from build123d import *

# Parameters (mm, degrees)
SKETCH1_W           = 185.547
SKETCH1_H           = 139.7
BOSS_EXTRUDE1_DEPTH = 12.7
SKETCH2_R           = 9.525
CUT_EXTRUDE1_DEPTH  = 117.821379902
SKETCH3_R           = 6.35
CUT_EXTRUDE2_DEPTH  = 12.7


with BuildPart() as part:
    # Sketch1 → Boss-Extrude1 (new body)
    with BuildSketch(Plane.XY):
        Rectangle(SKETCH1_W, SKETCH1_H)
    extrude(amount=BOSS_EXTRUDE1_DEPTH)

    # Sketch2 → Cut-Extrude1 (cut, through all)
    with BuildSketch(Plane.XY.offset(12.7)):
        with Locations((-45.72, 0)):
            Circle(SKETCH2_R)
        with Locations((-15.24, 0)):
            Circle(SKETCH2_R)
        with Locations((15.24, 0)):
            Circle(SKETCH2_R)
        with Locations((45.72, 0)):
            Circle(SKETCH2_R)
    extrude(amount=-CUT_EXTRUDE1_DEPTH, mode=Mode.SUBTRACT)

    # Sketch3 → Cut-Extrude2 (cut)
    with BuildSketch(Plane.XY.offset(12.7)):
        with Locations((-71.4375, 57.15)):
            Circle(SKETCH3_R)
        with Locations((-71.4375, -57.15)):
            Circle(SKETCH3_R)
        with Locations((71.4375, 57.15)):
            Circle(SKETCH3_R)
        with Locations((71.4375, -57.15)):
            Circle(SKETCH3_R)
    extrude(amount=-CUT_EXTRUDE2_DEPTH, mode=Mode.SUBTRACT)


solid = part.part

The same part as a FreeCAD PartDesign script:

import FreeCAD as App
import Part
import Sketcher
from FreeCAD import Vector
Q = App.Units.Quantity

doc = App.newDocument("Part")
params = doc.addObject("Spreadsheet::Sheet", "Params")
for row, (alias, value) in enumerate([
    ("sketch1_height", "5.5 in"),
    ("sketch1_width", "7.305 in"),
    ("pad1_length", "0.5 in"),
    ("sketch2_diameter", "0.75 in"),
    ("sketch3_diameter", "0.5 in"),
    ("pocket2_length", "0.5 in"),
], start=1):
    params.set(f"A{row}", alias)
    params.set(f"B{row}", "=" + value)
    params.setAlias(f"B{row}", alias)

body = doc.addObject("PartDesign::Body", "Body")

sketch1 = body.newObject("Sketcher::SketchObject", "Sketch")
sketch1.AttachmentSupport = (doc.getObject("XY_Plane"), [""])
sketch1.MapMode = "FlatFace"
sketch1.addGeometry([
    Part.LineSegment(Vector(-93, 70, 0), Vector(-93, -70, 0)),
    Part.LineSegment(Vector(-93, -70, 0), Vector(93, -70, 0)),
    Part.LineSegment(Vector(93, -70, 0), Vector(93, 70, 0)),
    Part.LineSegment(Vector(93, 70, 0), Vector(-93, 70, 0)),
], False)
sketch1.addConstraint([
    Sketcher.Constraint("Coincident", 0, 2, 1, 1),
    Sketcher.Constraint("Coincident", 1, 2, 2, 1),
    Sketcher.Constraint("Coincident", 2, 2, 3, 1),
    Sketcher.Constraint("Coincident", 3, 2, 0, 1),
    Sketcher.Constraint("Vertical", 0),
    Sketcher.Constraint("Horizontal", 1),
    Sketcher.Constraint("Vertical", 2),
    Sketcher.Constraint("Horizontal", 3),
    Sketcher.Constraint("Symmetric", 0, 2, 2, 2, -1, 1),
    Sketcher.Constraint("DistanceY", 0, 2, 0, 1, Q("5.5 in")),
    Sketcher.Constraint("DistanceX", 1, 1, 1, 2, Q("7.305 in")),
])
sketch1.setExpression("Constraints[9]", "Params.sketch1_height")
sketch1.setExpression("Constraints[10]", "Params.sketch1_width")
pad1 = body.newObject("PartDesign::Pad", "Pad")
pad1.Profile = sketch1
pad1.setExpression("Length", "Params.pad1_length")

sketch2 = body.newObject("Sketcher::SketchObject", "Sketch001")
sketch2.AttachmentSupport = (doc.getObject("XY_Plane"), [""])
sketch2.MapMode = "FlatFace"
sketch2.AttachmentOffset = App.Placement(Vector(0, 0, 0.5 * 25.4), App.Rotation())
sketch2.addGeometry([
    Part.Circle(Vector(-46, 0, 0), Vector(0, 0, 1), 10),
    Part.Circle(Vector(-15, 0, 0), Vector(0, 0, 1), 10),
    Part.Circle(Vector(15, 0, 0), Vector(0, 0, 1), 10),
    Part.Circle(Vector(46, 0, 0), Vector(0, 0, 1), 10),
], False)
sketch2.addConstraint([
    Sketcher.Constraint("Equal", 0, 1),
    Sketcher.Constraint("Equal", 1, 2),
    Sketcher.Constraint("Equal", 2, 3),
    Sketcher.Constraint("Symmetric", 1, 3, 2, 3, -1, 1),
    Sketcher.Constraint("Symmetric", 0, 3, 3, 3, -1, 1),
    Sketcher.Constraint("PointOnObject", 0, 3, -1),
    Sketcher.Constraint("PointOnObject", 1, 3, -1),
    Sketcher.Constraint("Diameter", 0, Q("0.75 in")),
    Sketcher.Constraint("DistanceX", 0, 3, -1, 1, Q("1.8 in")),
    Sketcher.Constraint("DistanceX", 1, 3, -1, 1, Q("0.6 in")),
])
sketch2.setExpression("Constraints[7]", "Params.sketch2_diameter")
pocket1 = body.newObject("PartDesign::Pocket", "Pocket")
pocket1.Profile = sketch2
pocket1.Type = "ThroughAll"

sketch3 = body.newObject("Sketcher::SketchObject", "Sketch002")
sketch3.AttachmentSupport = (doc.getObject("XY_Plane"), [""])
sketch3.MapMode = "FlatFace"
sketch3.AttachmentOffset = App.Placement(Vector(0, 0, 0.5 * 25.4), App.Rotation())
sketch3.addGeometry([
    Part.Circle(Vector(-71, 57, 0), Vector(0, 0, 1), 6),
    Part.Circle(Vector(-71, -57, 0), Vector(0, 0, 1), 6),
    Part.Circle(Vector(71, 57, 0), Vector(0, 0, 1), 6),
    Part.Circle(Vector(71, -57, 0), Vector(0, 0, 1), 6),
], False)
sketch3.addConstraint([
    Sketcher.Constraint("Equal", 0, 1),
    Sketcher.Constraint("Equal", 1, 2),
    Sketcher.Constraint("Equal", 2, 3),
    Sketcher.Constraint("Symmetric", 1, 3, 2, 3, -1, 1),
    Sketcher.Constraint("Symmetric", 0, 3, 3, 3, -1, 1),
    Sketcher.Constraint("Symmetric", 0, 3, 2, 3, -2),
    Sketcher.Constraint("Diameter", 0, Q("0.5 in")),
    Sketcher.Constraint("DistanceY", 1, 3, 0, 3, Q("4.5 in")),
    Sketcher.Constraint("DistanceX", 0, 3, -1, 1, Q("2.8125 in")),
])
sketch3.setExpression("Constraints[6]", "Params.sketch3_diameter")
pocket2 = body.newObject("PartDesign::Pocket", "Pocket001")
pocket2.Profile = sketch3
pocket2.setExpression("Length", "Params.pocket2_length")

doc.recompute()
